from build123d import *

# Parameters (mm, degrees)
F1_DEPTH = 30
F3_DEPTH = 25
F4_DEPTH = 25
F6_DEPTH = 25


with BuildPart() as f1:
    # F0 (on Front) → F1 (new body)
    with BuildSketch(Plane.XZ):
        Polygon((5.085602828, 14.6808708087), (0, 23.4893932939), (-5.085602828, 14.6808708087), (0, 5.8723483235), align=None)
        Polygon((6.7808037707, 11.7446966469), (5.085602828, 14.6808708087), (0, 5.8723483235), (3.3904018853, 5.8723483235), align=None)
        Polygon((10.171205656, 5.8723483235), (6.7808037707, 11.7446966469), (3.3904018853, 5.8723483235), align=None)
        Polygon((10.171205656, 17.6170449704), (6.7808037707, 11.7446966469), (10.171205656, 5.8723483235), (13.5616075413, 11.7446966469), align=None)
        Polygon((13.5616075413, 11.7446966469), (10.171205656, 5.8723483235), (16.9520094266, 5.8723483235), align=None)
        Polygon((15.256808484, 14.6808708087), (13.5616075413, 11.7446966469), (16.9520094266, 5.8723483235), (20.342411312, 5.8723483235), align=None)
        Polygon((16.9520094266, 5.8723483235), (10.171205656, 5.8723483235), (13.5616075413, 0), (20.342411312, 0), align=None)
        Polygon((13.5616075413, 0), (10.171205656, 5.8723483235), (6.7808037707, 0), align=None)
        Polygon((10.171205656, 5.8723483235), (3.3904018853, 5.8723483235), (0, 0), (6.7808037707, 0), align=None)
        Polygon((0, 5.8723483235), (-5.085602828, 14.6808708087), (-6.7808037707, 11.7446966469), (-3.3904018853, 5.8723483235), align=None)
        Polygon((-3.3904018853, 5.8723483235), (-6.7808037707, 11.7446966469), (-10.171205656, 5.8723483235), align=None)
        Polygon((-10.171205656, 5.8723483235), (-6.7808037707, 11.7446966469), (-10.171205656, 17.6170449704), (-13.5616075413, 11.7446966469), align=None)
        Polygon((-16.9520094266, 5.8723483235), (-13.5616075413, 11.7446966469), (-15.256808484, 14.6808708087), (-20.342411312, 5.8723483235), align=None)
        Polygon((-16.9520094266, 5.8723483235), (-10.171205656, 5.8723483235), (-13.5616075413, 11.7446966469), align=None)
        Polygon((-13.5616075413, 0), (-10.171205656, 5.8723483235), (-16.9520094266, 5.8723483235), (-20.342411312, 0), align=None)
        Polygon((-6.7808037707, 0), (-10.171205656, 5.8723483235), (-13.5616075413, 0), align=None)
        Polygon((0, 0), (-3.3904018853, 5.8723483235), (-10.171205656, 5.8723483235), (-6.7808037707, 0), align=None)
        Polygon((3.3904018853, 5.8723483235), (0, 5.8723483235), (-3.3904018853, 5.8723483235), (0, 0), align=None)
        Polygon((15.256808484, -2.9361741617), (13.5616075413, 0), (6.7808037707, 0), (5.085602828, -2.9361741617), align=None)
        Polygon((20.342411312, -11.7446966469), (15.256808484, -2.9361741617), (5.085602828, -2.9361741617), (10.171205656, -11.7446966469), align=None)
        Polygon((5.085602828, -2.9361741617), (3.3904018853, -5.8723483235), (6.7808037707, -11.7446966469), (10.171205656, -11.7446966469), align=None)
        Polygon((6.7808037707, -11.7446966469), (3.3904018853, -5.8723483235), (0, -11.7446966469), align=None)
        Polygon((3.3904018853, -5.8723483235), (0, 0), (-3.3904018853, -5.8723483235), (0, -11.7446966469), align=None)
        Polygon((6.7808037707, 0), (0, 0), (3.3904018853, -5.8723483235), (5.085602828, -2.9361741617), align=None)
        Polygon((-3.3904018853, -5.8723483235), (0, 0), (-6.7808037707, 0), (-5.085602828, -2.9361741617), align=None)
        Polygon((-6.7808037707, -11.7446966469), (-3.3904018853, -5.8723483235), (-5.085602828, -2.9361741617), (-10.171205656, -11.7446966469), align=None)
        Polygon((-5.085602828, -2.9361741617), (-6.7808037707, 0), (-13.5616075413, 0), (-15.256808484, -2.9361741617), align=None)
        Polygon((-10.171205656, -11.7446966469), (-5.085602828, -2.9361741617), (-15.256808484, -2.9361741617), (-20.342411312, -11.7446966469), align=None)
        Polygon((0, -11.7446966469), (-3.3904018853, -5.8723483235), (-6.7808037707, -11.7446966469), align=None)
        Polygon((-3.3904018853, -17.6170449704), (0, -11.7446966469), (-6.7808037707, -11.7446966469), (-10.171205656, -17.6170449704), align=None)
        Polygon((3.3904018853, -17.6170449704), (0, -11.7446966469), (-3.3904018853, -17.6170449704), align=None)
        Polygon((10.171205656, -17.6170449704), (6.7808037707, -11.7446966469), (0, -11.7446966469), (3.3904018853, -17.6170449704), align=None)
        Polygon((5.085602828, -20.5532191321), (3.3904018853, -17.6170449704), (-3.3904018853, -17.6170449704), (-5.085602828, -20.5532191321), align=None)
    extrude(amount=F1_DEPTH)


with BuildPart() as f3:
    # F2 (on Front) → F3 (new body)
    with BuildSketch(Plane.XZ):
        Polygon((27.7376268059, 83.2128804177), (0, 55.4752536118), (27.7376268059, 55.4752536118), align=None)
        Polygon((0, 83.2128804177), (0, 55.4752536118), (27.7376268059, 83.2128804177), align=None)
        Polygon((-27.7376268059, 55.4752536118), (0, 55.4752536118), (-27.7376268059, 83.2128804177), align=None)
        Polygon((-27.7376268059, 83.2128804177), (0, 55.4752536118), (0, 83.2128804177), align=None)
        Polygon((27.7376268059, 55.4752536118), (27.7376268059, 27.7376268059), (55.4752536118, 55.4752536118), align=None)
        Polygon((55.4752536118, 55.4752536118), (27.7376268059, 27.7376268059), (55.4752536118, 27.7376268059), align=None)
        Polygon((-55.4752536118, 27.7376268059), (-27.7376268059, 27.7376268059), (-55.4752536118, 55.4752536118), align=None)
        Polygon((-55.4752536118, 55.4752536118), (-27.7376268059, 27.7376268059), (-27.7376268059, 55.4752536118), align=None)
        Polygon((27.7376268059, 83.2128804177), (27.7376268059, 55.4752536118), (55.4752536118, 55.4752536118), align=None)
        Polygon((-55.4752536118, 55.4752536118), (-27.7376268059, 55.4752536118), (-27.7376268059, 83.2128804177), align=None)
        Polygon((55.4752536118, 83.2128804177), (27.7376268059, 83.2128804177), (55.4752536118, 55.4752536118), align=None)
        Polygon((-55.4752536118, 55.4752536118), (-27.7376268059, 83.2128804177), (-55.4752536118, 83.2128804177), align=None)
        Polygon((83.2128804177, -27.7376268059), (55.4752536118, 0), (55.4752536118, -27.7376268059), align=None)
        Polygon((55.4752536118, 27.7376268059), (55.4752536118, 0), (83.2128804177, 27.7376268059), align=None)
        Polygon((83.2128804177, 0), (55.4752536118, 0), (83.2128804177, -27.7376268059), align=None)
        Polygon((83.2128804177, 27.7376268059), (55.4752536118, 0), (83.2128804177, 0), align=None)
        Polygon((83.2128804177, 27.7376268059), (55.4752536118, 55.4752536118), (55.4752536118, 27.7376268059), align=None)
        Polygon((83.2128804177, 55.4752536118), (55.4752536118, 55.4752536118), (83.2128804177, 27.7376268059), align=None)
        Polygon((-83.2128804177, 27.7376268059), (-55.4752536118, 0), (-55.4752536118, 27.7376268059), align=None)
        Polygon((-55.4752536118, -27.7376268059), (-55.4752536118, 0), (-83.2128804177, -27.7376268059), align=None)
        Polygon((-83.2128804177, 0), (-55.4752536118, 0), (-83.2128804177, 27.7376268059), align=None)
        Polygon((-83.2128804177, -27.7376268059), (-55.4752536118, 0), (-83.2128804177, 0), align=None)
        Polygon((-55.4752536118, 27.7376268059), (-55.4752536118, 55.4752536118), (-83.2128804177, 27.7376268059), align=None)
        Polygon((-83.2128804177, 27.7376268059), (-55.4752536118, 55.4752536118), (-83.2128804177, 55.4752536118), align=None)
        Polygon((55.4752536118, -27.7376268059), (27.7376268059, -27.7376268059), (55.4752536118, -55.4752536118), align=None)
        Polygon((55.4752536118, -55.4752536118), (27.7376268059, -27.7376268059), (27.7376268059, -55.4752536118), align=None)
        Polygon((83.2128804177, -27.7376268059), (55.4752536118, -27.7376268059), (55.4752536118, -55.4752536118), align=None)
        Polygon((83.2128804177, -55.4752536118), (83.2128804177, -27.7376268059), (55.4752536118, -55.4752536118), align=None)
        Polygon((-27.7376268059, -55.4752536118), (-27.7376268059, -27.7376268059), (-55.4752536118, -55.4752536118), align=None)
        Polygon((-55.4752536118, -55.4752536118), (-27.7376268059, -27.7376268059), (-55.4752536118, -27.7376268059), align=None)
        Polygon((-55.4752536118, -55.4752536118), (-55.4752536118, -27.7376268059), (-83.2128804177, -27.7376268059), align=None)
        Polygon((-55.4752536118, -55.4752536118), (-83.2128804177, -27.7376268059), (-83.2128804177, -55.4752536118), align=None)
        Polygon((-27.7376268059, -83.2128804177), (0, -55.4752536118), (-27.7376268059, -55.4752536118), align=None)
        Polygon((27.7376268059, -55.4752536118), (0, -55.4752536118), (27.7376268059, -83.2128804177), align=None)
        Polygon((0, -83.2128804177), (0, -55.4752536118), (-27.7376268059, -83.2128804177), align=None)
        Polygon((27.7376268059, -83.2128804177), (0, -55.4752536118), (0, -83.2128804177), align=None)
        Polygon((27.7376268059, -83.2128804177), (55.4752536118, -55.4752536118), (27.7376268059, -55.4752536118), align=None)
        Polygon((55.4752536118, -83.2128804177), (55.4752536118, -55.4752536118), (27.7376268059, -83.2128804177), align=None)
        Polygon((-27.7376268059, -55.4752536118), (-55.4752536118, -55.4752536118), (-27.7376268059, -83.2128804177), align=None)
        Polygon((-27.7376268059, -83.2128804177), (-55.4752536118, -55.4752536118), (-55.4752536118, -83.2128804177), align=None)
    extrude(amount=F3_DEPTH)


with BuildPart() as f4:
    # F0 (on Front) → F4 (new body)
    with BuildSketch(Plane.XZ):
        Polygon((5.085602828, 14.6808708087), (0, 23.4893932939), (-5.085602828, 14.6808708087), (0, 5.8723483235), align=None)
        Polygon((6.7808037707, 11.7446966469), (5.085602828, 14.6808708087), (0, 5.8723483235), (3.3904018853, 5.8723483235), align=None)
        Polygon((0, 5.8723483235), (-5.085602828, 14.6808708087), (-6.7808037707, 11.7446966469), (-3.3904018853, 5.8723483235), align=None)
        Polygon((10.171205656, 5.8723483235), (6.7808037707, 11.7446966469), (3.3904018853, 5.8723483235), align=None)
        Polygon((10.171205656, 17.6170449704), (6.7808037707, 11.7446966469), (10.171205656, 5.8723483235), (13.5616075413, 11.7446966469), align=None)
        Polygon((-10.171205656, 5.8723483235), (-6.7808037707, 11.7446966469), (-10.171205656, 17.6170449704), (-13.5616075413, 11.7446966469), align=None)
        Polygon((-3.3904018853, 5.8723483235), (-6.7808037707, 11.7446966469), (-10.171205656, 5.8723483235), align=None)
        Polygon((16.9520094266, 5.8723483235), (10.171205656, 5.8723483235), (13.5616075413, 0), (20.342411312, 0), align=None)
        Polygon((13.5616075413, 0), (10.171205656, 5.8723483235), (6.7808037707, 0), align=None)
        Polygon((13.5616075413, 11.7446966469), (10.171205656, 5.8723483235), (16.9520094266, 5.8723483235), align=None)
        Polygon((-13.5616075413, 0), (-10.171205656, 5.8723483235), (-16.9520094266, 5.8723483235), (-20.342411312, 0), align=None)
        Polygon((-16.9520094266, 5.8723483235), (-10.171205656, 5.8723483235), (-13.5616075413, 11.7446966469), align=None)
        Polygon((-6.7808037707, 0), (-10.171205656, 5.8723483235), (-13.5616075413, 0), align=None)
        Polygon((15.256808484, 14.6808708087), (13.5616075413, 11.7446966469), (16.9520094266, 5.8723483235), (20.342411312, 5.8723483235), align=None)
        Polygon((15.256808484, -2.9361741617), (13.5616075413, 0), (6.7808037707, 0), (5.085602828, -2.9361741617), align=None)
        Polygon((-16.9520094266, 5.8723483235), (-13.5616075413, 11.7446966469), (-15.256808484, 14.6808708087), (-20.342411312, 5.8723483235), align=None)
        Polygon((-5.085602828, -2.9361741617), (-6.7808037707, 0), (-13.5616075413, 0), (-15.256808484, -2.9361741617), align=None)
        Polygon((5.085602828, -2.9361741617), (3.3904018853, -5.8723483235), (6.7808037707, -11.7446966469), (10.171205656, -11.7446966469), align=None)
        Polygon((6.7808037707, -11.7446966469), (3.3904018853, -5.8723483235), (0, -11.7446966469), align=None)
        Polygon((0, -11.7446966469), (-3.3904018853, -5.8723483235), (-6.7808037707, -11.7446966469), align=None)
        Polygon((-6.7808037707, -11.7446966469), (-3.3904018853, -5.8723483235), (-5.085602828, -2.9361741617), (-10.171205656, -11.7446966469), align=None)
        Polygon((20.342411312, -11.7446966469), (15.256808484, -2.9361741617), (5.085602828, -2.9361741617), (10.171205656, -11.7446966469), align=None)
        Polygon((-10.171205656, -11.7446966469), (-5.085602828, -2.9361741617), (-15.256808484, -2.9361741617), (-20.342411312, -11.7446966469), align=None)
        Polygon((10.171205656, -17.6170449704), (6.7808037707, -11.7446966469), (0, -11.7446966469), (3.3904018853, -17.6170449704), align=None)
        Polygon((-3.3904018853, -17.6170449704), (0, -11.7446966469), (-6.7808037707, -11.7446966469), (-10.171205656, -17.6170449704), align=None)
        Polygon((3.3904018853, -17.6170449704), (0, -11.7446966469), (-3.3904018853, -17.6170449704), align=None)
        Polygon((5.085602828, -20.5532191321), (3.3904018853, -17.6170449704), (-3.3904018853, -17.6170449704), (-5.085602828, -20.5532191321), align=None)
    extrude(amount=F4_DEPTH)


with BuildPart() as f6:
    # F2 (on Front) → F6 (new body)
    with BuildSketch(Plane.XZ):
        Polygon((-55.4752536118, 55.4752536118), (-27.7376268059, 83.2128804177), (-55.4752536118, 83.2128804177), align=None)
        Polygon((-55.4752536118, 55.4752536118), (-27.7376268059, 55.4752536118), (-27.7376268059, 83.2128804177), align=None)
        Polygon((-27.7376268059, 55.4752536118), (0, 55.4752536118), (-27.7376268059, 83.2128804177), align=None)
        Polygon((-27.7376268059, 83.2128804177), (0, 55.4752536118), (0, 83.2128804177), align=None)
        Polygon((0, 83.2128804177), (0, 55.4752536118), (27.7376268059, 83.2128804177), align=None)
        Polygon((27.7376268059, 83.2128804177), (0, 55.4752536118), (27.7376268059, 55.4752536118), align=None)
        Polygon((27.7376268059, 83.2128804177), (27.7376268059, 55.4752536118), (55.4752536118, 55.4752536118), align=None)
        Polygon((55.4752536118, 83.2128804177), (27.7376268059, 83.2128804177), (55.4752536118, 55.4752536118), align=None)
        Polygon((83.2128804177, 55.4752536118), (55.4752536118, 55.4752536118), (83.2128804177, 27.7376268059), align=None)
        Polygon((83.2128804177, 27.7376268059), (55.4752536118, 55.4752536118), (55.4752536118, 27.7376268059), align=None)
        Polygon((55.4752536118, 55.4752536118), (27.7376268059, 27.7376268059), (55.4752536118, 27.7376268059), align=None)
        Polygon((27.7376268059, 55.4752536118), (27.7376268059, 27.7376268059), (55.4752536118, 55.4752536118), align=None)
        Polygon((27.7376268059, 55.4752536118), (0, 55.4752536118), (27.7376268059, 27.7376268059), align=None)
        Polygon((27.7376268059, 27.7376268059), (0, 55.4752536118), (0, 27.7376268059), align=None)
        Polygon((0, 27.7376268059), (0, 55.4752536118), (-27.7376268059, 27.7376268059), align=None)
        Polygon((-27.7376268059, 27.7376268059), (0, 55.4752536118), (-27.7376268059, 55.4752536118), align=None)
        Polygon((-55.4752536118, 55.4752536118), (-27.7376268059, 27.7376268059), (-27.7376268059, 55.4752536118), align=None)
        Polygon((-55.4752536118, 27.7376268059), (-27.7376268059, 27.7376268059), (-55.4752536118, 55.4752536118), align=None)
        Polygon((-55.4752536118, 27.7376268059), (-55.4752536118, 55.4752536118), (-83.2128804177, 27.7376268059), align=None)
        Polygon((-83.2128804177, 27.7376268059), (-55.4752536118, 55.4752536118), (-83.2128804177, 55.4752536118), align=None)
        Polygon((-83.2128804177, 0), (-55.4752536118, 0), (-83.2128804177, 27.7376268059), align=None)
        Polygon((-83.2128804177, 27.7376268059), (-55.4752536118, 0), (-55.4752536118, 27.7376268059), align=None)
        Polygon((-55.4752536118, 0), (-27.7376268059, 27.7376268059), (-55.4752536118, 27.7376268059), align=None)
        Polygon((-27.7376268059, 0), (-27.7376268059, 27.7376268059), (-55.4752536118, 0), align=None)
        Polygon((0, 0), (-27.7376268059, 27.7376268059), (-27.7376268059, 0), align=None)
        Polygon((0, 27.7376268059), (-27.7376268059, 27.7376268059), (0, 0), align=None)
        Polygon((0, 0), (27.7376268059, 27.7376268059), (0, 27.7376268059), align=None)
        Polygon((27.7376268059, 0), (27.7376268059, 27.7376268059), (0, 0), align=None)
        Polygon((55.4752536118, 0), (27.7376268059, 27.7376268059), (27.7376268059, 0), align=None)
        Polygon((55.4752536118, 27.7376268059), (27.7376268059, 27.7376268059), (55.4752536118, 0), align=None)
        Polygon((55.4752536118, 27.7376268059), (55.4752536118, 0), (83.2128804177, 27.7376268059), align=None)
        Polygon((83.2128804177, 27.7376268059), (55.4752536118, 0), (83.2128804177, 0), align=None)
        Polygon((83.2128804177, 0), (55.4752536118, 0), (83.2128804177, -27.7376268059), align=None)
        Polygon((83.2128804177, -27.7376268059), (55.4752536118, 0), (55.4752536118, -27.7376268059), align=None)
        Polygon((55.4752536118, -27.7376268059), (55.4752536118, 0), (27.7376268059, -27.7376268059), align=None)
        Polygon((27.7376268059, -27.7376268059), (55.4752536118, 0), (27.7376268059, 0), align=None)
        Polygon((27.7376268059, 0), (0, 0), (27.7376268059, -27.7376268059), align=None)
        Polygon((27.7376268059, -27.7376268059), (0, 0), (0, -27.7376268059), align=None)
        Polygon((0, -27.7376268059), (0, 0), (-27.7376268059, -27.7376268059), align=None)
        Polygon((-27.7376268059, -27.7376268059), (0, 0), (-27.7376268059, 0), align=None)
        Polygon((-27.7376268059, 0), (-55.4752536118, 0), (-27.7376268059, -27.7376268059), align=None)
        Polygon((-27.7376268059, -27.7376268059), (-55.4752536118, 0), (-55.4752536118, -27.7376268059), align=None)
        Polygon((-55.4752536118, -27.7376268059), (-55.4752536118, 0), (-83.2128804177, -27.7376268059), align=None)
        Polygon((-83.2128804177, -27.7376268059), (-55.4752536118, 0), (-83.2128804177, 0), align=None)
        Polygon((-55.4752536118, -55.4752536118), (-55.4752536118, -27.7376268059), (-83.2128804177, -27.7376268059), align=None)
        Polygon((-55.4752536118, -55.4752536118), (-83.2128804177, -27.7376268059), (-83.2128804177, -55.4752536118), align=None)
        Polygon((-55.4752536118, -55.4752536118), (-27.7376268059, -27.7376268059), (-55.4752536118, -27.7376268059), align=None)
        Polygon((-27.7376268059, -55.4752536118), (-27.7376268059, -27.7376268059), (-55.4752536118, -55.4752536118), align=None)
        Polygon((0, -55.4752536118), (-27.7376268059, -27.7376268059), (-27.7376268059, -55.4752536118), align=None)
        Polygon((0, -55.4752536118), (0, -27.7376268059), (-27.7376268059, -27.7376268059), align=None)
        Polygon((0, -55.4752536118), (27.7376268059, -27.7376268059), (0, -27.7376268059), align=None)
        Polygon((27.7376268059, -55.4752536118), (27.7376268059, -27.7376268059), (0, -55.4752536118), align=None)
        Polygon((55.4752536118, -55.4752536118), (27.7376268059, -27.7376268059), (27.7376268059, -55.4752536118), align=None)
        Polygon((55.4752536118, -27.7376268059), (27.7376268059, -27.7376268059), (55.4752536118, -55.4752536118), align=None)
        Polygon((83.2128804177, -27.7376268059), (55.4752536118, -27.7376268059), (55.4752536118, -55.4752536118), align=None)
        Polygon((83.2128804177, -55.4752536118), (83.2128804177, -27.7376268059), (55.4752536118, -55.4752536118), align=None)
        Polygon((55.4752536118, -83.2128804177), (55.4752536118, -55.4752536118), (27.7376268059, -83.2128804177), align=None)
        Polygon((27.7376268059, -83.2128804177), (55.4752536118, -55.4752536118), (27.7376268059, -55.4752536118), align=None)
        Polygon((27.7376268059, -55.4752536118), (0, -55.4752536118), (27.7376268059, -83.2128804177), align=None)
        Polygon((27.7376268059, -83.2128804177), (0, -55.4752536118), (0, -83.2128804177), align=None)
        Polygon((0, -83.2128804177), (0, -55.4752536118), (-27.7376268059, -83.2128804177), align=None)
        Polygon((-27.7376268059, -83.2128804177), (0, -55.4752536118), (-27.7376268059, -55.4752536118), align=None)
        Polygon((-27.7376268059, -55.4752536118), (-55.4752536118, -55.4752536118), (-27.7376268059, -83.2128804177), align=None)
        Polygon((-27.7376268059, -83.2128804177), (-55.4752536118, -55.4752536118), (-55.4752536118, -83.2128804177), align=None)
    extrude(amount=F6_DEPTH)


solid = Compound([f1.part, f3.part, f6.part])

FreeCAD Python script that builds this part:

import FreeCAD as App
import Part
import Sketcher
from FreeCAD import Vector
Q = App.Units.Quantity


def add_polygon(sketch, points):
    """Adds a closed chain of lines whose ends are joined by coincident constraints."""
    first, n = sketch.GeometryCount, len(points)
    for a, b in zip(points, points[1:] + points[:1]):
        sketch.addGeometry(Part.LineSegment(App.Vector(*a, 0), App.Vector(*b, 0)), False)
    for i in range(n):
        sketch.addConstraint(Sketcher.Constraint("Coincident", first + i, 2, first + (i + 1) % n, 1))

doc = App.newDocument("Part")
body = doc.addObject("PartDesign::Body", "Body")

# Sketch on XZ plane
sketch1 = body.newObject("Sketcher::SketchObject", "Sketch")
sketch1.AttachmentSupport = (doc.getObject("XZ_Plane"), [""])
sketch1.MapMode = "FlatFace"
add_polygon(sketch1, [(-20.3, 0), (-13.6, 0), (-15.3, -2.9), (-20.3, -11.7), (-6.8, -11.7), (-10.2, -17.6), (-3.4, -17.6), (-5.1, -20.6), (5.1, -20.6), (3.4, -17.6), (10.2, -17.6), (6.8, -11.7), (20.3, -11.7), (15.3, -2.9), (13.6, 0), (20.3, 0), (17, 5.9), (20.3, 5.9), (15.3, 14.7), (13.6, 11.7), (10.2, 17.6), (6.8, 11.7), (5.1, 14.7), (0, 23.5), (-5.1, 14.7), (-6.8, 11.7), (-10.2, 17.6), (-13.6, 11.7), (-15.3, 14.7), (-20.3, 5.9), (-17, 5.9)])  # lines 0-30
sketch1.addConstraint([
    Sketcher.Constraint("Horizontal", 0),
    Sketcher.Constraint("Horizontal", 3),
    Sketcher.Constraint("Horizontal", 5),
    Sketcher.Constraint("Horizontal", 7),
    Sketcher.Constraint("Horizontal", 9),
    Sketcher.Constraint("Horizontal", 11),
    Sketcher.Constraint("Horizontal", 14),
    Sketcher.Constraint("Horizontal", 16),
    Sketcher.Constraint("Horizontal", 29),
    Sketcher.Constraint("Symmetric", 0, 2, 13, 2, -1, 1),
    Sketcher.Constraint("Symmetric", 4, 2, 19, 2, -1, 1),
    Sketcher.Constraint("Symmetric", 3, 2, 20, 2, -1, 1),
    Sketcher.Constraint("Symmetric", 10, 2, 24, 2, -1, 1),
    Sketcher.Constraint("Symmetric", 9, 2, 25, 2, -1, 1),
    Sketcher.Constraint("Symmetric", 5, 2, 8, 2, -2),
    Sketcher.Constraint("Symmetric", 3, 2, 10, 2, -2),
    Sketcher.Constraint("Symmetric", 1, 2, 12, 2, -2),
    Sketcher.Constraint("Symmetric", 21, 2, 23, 2, -2),
    Sketcher.Constraint("Symmetric", 18, 2, 26, 2, -2),
    Sketcher.Constraint("Symmetric", 17, 2, 27, 2, -2),
    Sketcher.Constraint("Symmetric", 16, 2, 28, 2, -2),
    Sketcher.Constraint("Symmetric", 14, 2, 30, 2, -2),
    Sketcher.Constraint("PointOnObject", 22, 2, -2),
    Sketcher.Constraint("Parallel", 1, 2),
    Sketcher.Constraint("Parallel", 2, 4),
    Sketcher.Constraint("Parallel", 4, 6),
    Sketcher.Constraint("Parallel", 8, 10),
    Sketcher.Constraint("Parallel", 10, 12),
    Sketcher.Constraint("Parallel", 12, 13),
    Sketcher.Constraint("Parallel", 13, 15),
    Sketcher.Constraint("Parallel", 15, 17),
    Sketcher.Constraint("Parallel", 6, 18),
    Sketcher.Constraint("Parallel", 17, 19),
    Sketcher.Constraint("Parallel", 19, 21),
    Sketcher.Constraint("Parallel", 21, 22),
    Sketcher.Constraint("Parallel", 28, 30),
    Sketcher.Constraint("Horizontal", 18, 2, 20, 2),
    Sketcher.Constraint("Horizontal", 17, 2, 21, 2),
    Sketcher.Constraint("Vertical", 11, 2, 14, 2),
    Sketcher.Constraint("Vertical", 14, 2, 16, 2),
    Sketcher.Constraint("Vertical", 12, 2, 17, 2),
    Sketcher.Constraint("Vertical", 13, 2, 18, 2),
    Sketcher.Constraint("Vertical", 7, 2, 21, 2),
    Sketcher.Constraint("Equal", 0, 5),
    Sketcher.Constraint("Equal", 1, 6),
    Sketcher.Constraint("Equal", 10, 15),
    Sketcher.Constraint("Equal", 17, 22),
    Sketcher.Constraint("Angle", 1, Q("-120 deg")),
    Sketcher.Constraint("DistanceX", 16, 1, 16, 2, Q("3.390402 mm")),
])
pad1 = body.newObject("PartDesign::Pad", "Pad")
pad1.Profile = sketch1
pad1.Length = 30
body2 = doc.addObject("PartDesign::Body", "Body001")

# Sketch on XZ plane
sketch2 = body2.newObject("Sketcher::SketchObject", "Sketch001")
sketch2.AttachmentSupport = (doc.getObject("XZ_Plane001"), [""])
sketch2.MapMode = "FlatFace"
add_polygon(sketch2, [(-83, -55), (-55, -55), (-55, -83), (55, -83), (55, -55), (83, -55), (83, 55), (55, 55), (55, 83), (-55, 83), (-55, 55), (-83, 55)])  # lines 0-11
add_polygon(sketch2, [(28, -55), (-28, -55), (-28, -28), (-55, -28), (-55, 28), (-28, 28), (-28, 55), (28, 55), (28, 28), (55, 28), (55, -28), (28, -28)])  # lines 12-23
sketch2.addConstraint([
    Sketcher.Constraint("Horizontal", 0),
    Sketcher.Constraint("Vertical", 1),
    Sketcher.Constraint("Horizontal", 2),
    Sketcher.Constraint("Vertical", 3),
    Sketcher.Constraint("Horizontal", 4),
    Sketcher.Constraint("Vertical", 5),
    Sketcher.Constraint("Horizontal", 6),
    Sketcher.Constraint("Vertical", 7),
    Sketcher.Constraint("Horizontal", 8),
    Sketcher.Constraint("Vertical", 9),
    Sketcher.Constraint("Horizontal", 10),
    Sketcher.Constraint("Vertical", 11),
    Sketcher.Constraint("Horizontal", 12),
    Sketcher.Constraint("Vertical", 13),
    Sketcher.Constraint("Horizontal", 14),
    Sketcher.Constraint("Vertical", 15),
    Sketcher.Constraint("Horizontal", 16),
    Sketcher.Constraint("Vertical", 17),
    Sketcher.Constraint("Horizontal", 18),
    Sketcher.Constraint("Vertical", 19),
    Sketcher.Constraint("Horizontal", 20),
    Sketcher.Constraint("Vertical", 21),
    Sketcher.Constraint("Horizontal", 22),
    Sketcher.Constraint("Vertical", 23),
    Sketcher.Constraint("Symmetric", 0, 2, 6, 2, -1, 1),
    Sketcher.Constraint("Symmetric", 2, 2, 8, 2, -1, 1),
    Sketcher.Constraint("Symmetric", 4, 2, 10, 2, -1, 1),
    Sketcher.Constraint("Symmetric", 12, 2, 18, 2, -1, 1),
    Sketcher.Constraint("Symmetric", 14, 2, 20, 2, -1, 1),
    Sketcher.Constraint("Symmetric", 16, 2, 22, 2, -1, 1),
    Sketcher.Constraint("Symmetric", 0, 2, 3, 2, -2),
    Sketcher.Constraint("Symmetric", 16, 2, 19, 2, -2),
    Sketcher.Constraint("Horizontal", 11, 2, 12, 2),
    Sketcher.Constraint("Vertical", 9, 2, 14, 2),
    Sketcher.Constraint("Equal", 10, 14),
    Sketcher.Constraint("Equal", 22, 1),
    Sketcher.Constraint("Equal", 8, 5),
    Sketcher.Constraint("Equal", 9, 13),
    Sketcher.Constraint("DistanceX", 0, 1, 0, 2, Q("27.737627 mm")),
    Sketcher.Constraint("DistanceX", 2, 1, 2, 2, Q("110.950507 mm")),
])
pad2 = body2.newObject("PartDesign::Pad", "Pad001")
pad2.Profile = sketch2
pad2.Length = 25
body3 = doc.addObject("PartDesign::Body", "Body002")

# Sketch on XZ plane
sketch3 = body3.newObject("Sketcher::SketchObject", "Sketch002")
sketch3.AttachmentSupport = (doc.getObject("XZ_Plane002"), [""])
sketch3.MapMode = "FlatFace"
add_polygon(sketch3, [(-10.2, -17.6), (-3.4, -17.6), (-5.1, -20.6), (5.1, -20.6), (3.4, -17.6), (10.2, -17.6), (6.8, -11.7), (20.3, -11.7), (15.3, -2.9), (13.6, 0), (20.3, 0), (17, 5.9), (20.3, 5.9), (15.3, 14.7), (13.6, 11.7), (10.2, 17.6), (6.8, 11.7), (5.1, 14.7), (0, 23.5), (-5.1, 14.7), (-6.8, 11.7), (-10.2, 17.6), (-13.6, 11.7), (-15.3, 14.7), (-20.3, 5.9), (-17, 5.9), (-20.3, 0), (-13.6, 0), (-15.3, -2.9), (-20.3, -11.7), (-6.8, -11.7)])  # lines 0-30
add_polygon(sketch3, [(3.4, -5.9), (0, -11.7), (-3.4, -5.9), (-5.1, -2.9), (-6.8, 0), (-10.2, 5.9), (10.2, 5.9), (6.8, 0), (5.1, -2.9)])  # lines 31-39
sketch3.addConstraint([
    Sketcher.Constraint("Horizontal", 0),
    Sketcher.Constraint("Horizontal", 2),
    Sketcher.Constraint("Horizontal", 4),
    Sketcher.Constraint("Horizontal", 6),
    Sketcher.Constraint("Horizontal", 9),
    Sketcher.Constraint("Horizontal", 11),
    Sketcher.Constraint("Horizontal", 24),
    Sketcher.Constraint("Horizontal", 26),
    Sketcher.Constraint("Horizontal", 29),
    Sketcher.Constraint("Horizontal", 36),
    Sketcher.Constraint("Symmetric", 5, 2, 19, 2, -1, 1),
    Sketcher.Constraint("Symmetric", 4, 2, 20, 2, -1, 1),
    Sketcher.Constraint("Symmetric", 9, 2, 25, 2, -1, 1),
    Sketcher.Constraint("Symmetric", 15, 2, 29, 2, -1, 1),
    Sketcher.Constraint("Symmetric", 14, 2, 30, 2, -1, 1),
    Sketcher.Constraint("Symmetric", 34, 2, 37, 2, -1, 1),
    Sketcher.Constraint("Symmetric", 0, 2, 3, 2, -2),
    Sketcher.Constraint("Symmetric", 16, 2, 18, 2, -2),
    Sketcher.Constraint("Symmetric", 15, 2, 19, 2, -2),
    Sketcher.Constraint("Symmetric", 13, 2, 21, 2, -2),
    Sketcher.Constraint("Symmetric", 12, 2, 22, 2, -2),
    Sketcher.Constraint("Symmetric", 11, 2, 23, 2, -2),
    Sketcher.Constraint("Symmetric", 8, 2, 26, 2, -2),
    Sketcher.Constraint("Symmetric", 7, 2, 27, 2, -2),
    Sketcher.Constraint("Symmetric", 33, 2, 38, 2, -2),
    Sketcher.Constraint("Symmetric", 32, 2, 39, 2, -2),
    Sketcher.Constraint("PointOnObject", 17, 2, -2),
    Sketcher.Constraint("PointOnObject", 31, 2, -2),
    Sketcher.Constraint("PointOnObject", 34, 2, -1),
    Sketcher.Constraint("Parallel", 3, 5),
    Sketcher.Constraint("Parallel", 5, 7),
    Sketcher.Constraint("Parallel", 7, 8),
    Sketcher.Constraint("Parallel", 8, 10),
    Sketcher.Constraint("Parallel", 10, 12),
    Sketcher.Constraint("Parallel", 1, 13),
    Sketcher.Constraint("Parallel", 12, 14),
    Sketcher.Constraint("Parallel", 13, 15),
    Sketcher.Constraint("Parallel", 14, 16),
    Sketcher.Constraint("Parallel", 16, 17),
    Sketcher.Constraint("Parallel", 15, 18),
    Sketcher.Constraint("Parallel", 23, 25),
    Sketcher.Constraint("Parallel", 27, 28),
    Sketcher.Constraint("Parallel", 30, 31),
    Sketcher.Constraint("Parallel", 32, 33),
    Sketcher.Constraint("Parallel", 33, 34),
    Sketcher.Constraint("Parallel", 34, 35),
    Sketcher.Constraint("Parallel", 31, 37),
    Sketcher.Constraint("Horizontal", 13, 2, 15, 2),
    Sketcher.Constraint("Horizontal", 12, 2, 16, 2),
    Sketcher.Constraint("Horizontal", 29, 2, 31, 2),
    Sketcher.Constraint("Horizontal", 27, 2, 33, 2),
    Sketcher.Constraint("Horizontal", 24, 2, 35, 2),
    Sketcher.Constraint("Vertical", 6, 2, 9, 2),
    Sketcher.Constraint("Vertical", 9, 2, 11, 2),
    Sketcher.Constraint("Vertical", 7, 2, 12, 2),
    Sketcher.Constraint("Vertical", 8, 2, 13, 2),
    Sketcher.Constraint("Vertical", 2, 2, 16, 2),
    Sketcher.Constraint("Vertical", 0, 2, 32, 2),
    Sketcher.Constraint("Vertical", 18, 2, 33, 2),
    Sketcher.Constraint("Vertical", 30, 2, 35, 2),
    Sketcher.Constraint("Equal", 4, 9),
    Sketcher.Constraint("Equal", 3, 8),
    Sketcher.Constraint("Angle", 1, Q("-120 deg")),
    Sketcher.Constraint("DistanceX", 11, 1, 11, 2, Q("3.390402 mm")),
])
pad3 = body3.newObject("PartDesign::Pad", "Pad002")
pad3.Profile = sketch3
pad3.Length = 25
body4 = doc.addObject("PartDesign::Body", "Body003")

# Sketch on XZ plane
sketch4 = body4.newObject("Sketcher::SketchObject", "Sketch003")
sketch4.AttachmentSupport = (doc.getObject("XZ_Plane003"), [""])
sketch4.MapMode = "FlatFace"
add_polygon(sketch4, [(-55, 83), (-55, 55), (-83, 55), (-83, -55), (-55, -55), (-55, -83), (55, -83), (55, -55), (83, -55), (83, 55), (55, 55), (55, 83)])  # lines 0-11
sketch4.addConstraint([
    Sketcher.Constraint("Vertical", 0),
    Sketcher.Constraint("Horizontal", 1),
    Sketcher.Constraint("Vertical", 2),
    Sketcher.Constraint("Horizontal", 3),
    Sketcher.Constraint("Vertical", 4),
    Sketcher.Constraint("Horizontal", 5),
    Sketcher.Constraint("Vertical", 6),
    Sketcher.Constraint("Horizontal", 7),
    Sketcher.Constraint("Vertical", 8),
    Sketcher.Constraint("Horizontal", 9),
    Sketcher.Constraint("Vertical", 10),
    Sketcher.Constraint("Horizontal", 11),
    Sketcher.Constraint("Symmetric", 0, 2, 6, 2, -1, 1),
    Sketcher.Constraint("Symmetric", 2, 2, 8, 2, -1, 1),
    Sketcher.Constraint("Symmetric", 4, 2, 10, 2, -1, 1),
    Sketcher.Constraint("Symmetric", 3, 2, 6, 2, -2),
    Sketcher.Constraint("Equal", 9, 0),
    Sketcher.Constraint("Equal", 11, 2),
    Sketcher.Constraint("DistanceX", 1, 2, 1, 1, Q("27.737627 mm")),
    Sketcher.Constraint("DistanceX", 5, 1, 5, 2, Q("110.950507 mm")),
])
pad4 = body4.newObject("PartDesign::Pad", "Pad003")
pad4.Profile = sketch4
pad4.Length = 25
body3.Visibility = False

doc.recompute()
